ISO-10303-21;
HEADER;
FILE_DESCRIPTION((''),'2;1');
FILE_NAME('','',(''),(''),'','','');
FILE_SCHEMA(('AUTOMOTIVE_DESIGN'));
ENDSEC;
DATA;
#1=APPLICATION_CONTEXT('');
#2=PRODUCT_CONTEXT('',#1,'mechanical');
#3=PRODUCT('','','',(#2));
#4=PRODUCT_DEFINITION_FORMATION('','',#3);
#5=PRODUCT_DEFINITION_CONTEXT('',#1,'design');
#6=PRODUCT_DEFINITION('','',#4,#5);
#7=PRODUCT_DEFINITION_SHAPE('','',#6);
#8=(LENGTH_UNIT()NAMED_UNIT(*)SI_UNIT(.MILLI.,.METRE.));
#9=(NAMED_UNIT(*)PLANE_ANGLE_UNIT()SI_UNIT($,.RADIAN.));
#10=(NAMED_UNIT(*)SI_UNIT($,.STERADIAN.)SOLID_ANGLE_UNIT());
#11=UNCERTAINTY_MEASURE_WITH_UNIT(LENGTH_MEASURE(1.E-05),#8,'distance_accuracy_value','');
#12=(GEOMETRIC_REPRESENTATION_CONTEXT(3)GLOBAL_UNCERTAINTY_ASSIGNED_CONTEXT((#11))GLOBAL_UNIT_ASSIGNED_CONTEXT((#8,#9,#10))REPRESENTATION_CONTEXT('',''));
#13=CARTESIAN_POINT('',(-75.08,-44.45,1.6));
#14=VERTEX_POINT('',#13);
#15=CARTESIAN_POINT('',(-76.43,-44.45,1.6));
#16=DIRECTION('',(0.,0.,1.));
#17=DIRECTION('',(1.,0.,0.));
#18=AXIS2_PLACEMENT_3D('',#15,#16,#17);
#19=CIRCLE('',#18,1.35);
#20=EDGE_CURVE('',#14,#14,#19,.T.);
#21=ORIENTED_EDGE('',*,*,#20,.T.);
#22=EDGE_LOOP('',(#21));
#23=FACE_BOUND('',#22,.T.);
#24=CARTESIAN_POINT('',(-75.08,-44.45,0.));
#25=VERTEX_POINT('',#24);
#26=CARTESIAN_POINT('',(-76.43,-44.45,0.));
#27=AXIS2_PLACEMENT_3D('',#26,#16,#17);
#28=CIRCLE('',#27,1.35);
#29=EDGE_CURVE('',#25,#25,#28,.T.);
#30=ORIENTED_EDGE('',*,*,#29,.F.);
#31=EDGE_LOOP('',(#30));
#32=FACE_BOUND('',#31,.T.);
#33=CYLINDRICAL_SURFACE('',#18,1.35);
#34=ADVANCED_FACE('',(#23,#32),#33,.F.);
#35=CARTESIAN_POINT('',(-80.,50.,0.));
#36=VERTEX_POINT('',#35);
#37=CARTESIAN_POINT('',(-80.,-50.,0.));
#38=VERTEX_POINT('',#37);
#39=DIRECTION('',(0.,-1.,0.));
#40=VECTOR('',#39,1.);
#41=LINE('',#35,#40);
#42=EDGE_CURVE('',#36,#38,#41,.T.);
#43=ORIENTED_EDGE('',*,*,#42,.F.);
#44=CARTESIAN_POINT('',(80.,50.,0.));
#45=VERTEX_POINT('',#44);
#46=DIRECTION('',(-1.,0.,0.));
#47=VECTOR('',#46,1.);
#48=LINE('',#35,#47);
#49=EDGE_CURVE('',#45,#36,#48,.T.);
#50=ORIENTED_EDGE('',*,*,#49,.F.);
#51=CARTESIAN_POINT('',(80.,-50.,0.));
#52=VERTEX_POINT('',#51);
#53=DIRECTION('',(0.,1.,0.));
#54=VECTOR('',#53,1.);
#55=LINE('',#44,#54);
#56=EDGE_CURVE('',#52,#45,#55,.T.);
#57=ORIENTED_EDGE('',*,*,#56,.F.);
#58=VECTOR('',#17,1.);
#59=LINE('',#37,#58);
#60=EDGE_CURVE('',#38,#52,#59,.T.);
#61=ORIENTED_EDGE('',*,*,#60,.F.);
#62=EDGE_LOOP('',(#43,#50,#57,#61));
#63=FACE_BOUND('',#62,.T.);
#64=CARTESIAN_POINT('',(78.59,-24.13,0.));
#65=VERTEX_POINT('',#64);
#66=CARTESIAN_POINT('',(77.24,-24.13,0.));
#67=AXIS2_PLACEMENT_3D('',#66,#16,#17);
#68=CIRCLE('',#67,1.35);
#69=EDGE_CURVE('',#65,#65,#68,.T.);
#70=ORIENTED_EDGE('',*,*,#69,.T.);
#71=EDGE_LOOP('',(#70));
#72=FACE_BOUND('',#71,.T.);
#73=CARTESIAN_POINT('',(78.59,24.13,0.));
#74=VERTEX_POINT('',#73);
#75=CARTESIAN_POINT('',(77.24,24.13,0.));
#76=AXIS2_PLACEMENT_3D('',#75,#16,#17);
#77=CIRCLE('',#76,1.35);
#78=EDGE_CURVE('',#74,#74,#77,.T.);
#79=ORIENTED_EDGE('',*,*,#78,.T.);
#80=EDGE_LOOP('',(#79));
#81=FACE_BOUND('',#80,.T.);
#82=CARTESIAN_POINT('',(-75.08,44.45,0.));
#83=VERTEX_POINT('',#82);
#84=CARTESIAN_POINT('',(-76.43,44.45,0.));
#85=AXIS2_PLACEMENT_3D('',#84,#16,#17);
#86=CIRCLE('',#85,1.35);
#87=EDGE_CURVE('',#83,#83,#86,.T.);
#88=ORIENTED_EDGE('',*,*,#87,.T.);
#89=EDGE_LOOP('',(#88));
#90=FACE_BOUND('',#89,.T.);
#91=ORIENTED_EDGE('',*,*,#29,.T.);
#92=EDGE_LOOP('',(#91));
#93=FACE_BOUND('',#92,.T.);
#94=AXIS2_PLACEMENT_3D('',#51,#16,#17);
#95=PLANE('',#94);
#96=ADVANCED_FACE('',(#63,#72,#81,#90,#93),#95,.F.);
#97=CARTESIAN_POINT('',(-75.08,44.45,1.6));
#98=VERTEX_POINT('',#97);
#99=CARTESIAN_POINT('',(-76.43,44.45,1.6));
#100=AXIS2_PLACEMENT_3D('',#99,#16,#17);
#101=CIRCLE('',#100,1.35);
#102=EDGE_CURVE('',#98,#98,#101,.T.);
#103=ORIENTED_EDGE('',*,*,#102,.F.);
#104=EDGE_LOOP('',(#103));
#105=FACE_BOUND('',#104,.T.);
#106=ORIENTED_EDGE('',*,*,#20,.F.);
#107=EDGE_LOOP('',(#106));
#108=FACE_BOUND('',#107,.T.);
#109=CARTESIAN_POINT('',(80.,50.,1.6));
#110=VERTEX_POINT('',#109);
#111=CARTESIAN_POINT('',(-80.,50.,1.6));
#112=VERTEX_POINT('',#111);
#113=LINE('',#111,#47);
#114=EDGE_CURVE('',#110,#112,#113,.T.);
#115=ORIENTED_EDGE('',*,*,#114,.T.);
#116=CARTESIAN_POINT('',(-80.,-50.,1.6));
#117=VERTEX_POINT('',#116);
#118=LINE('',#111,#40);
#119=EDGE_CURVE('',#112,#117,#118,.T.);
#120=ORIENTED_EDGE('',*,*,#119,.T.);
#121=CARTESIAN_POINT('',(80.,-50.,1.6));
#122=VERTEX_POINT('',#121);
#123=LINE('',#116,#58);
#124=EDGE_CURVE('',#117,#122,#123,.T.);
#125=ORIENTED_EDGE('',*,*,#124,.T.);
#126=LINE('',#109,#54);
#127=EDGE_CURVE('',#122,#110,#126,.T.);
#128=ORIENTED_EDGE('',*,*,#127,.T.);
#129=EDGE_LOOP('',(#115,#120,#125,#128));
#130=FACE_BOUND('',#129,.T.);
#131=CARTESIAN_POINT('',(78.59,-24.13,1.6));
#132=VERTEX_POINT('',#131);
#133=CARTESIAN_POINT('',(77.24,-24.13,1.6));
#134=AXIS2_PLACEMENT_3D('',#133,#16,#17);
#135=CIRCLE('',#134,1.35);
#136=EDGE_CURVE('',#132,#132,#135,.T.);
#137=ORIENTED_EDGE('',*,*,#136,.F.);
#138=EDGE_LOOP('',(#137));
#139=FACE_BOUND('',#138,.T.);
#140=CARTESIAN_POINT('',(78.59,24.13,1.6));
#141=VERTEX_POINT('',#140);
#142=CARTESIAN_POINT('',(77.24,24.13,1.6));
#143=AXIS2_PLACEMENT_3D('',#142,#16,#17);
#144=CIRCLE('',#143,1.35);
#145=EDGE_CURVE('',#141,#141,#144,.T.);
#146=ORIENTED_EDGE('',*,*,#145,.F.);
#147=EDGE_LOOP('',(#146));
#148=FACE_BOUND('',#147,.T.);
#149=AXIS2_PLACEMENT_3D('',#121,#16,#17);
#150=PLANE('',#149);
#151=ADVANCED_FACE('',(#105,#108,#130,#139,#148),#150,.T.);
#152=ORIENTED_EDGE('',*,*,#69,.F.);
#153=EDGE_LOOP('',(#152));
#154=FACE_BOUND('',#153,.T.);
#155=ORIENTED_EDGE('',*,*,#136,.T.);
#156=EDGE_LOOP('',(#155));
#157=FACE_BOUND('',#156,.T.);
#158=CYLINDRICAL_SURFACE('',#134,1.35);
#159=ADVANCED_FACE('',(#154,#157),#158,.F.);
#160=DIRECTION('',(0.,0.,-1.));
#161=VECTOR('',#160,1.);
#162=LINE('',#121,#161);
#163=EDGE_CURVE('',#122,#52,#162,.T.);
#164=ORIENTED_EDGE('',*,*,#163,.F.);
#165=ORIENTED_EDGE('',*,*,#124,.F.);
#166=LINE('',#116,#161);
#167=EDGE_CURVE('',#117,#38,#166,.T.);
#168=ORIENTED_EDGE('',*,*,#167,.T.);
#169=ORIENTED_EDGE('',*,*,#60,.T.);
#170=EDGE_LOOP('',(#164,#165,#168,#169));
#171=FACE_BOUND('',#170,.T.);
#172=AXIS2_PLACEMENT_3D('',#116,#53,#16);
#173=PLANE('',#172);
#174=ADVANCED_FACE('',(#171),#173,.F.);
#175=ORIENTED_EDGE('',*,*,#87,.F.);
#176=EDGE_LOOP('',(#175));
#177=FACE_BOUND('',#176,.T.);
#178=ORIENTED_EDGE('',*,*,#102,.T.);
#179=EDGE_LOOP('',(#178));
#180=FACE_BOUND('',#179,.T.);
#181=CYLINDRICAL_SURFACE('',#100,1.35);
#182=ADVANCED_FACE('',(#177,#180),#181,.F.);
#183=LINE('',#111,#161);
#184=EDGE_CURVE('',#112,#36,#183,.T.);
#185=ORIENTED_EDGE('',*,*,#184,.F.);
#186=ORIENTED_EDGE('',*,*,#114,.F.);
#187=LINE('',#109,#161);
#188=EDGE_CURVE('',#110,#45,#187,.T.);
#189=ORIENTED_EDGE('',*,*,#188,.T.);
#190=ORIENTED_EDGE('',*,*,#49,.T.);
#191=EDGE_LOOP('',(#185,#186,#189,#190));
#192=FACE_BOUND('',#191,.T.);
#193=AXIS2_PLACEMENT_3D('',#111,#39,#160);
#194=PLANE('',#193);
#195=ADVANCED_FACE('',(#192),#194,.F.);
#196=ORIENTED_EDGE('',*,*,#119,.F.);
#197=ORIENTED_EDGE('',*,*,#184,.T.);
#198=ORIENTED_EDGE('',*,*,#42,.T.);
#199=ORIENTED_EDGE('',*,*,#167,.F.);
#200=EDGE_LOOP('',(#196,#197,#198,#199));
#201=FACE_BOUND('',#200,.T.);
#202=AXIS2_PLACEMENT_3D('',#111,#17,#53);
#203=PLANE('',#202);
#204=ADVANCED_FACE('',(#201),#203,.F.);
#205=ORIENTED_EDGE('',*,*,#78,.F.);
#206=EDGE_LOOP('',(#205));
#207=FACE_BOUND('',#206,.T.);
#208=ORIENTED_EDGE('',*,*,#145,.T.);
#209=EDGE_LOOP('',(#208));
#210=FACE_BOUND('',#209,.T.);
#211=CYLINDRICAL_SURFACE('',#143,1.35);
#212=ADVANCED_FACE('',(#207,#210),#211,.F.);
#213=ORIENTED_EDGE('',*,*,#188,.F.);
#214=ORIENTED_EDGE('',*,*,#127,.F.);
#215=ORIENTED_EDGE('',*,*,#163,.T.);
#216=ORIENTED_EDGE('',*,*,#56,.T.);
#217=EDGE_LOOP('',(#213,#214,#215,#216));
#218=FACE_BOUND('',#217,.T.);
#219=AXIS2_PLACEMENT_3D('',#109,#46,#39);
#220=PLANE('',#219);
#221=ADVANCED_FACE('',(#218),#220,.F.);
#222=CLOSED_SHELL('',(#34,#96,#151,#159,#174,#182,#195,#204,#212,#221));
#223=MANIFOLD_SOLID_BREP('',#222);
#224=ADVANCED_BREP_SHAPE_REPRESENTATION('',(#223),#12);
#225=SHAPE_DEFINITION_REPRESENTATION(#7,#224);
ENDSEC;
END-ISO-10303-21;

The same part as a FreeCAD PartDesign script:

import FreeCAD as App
import Part
import Sketcher

V = App.Vector
Q = App.Units.Quantity

doc = App.newDocument("Part")
params = doc.addObject("Spreadsheet::Sheet", "Params")
for row, (alias, value) in enumerate([
    ("sketch1_width", "160 mm"),
    ("sketch1_height", "100 mm"),
    ("pad1_length", "1.6 mm"),
    ("sketch2_diameter", "2.7 mm"),
    ("hole_diameter", "2.7 mm"),
    ("sketch3_diameter", "2.7 mm"),
    ("hole2_diameter", "2.7 mm"),
], start=1):
    params.set(f"A{row}", alias)
    params.set(f"B{row}", "=" + value)
    params.setAlias(f"B{row}", alias)

body = doc.addObject("PartDesign::Body", "Body")

# Sketch on XY plane
sketch1 = body.newObject("Sketcher::SketchObject", "Sketch")
sketch1.AttachmentSupport = (doc.getObject("XY_Plane"), [""])
sketch1.MapMode = "FlatFace"
sketch1.addGeometry([
    Part.LineSegment(V(-80, 50, 0), V(-80, -50, 0)),
    Part.LineSegment(V(-80, -50, 0), V(80, -50, 0)),
    Part.LineSegment(V(80, -50, 0), V(80, 50, 0)),
    Part.LineSegment(V(80, 50, 0), V(-80, 50, 0)),
], False)
sketch1.addConstraint([
    Sketcher.Constraint("Coincident", 0, 2, 1, 1),
    Sketcher.Constraint("Coincident", 1, 2, 2, 1),
    Sketcher.Constraint("Coincident", 2, 2, 3, 1),
    Sketcher.Constraint("Coincident", 3, 2, 0, 1),
    Sketcher.Constraint("Vertical", 0),
    Sketcher.Constraint("Horizontal", 1),
    Sketcher.Constraint("Vertical", 2),
    Sketcher.Constraint("Horizontal", 3),
    Sketcher.Constraint("Symmetric", 0, 2, 2, 2, -1, 1),
    Sketcher.Constraint("DistanceX", 1, 1, 1, 2, Q("160 mm")),
    Sketcher.Constraint("DistanceY", 0, 2, 0, 1, Q("100 mm")),
])
sketch1.setExpression("Constraints[9]", "Params.sketch1_width")
sketch1.setExpression("Constraints[10]", "Params.sketch1_height")
pad1 = body.newObject("PartDesign::Pad", "Pad")
pad1.Profile = sketch1
pad1.setExpression("Length", "Params.pad1_length")

# Sketch on XY plane
sketch2 = body.newObject("Sketcher::SketchObject", "Sketch001")
sketch2.AttachmentSupport = (doc.getObject("XY_Plane"), [""])
sketch2.MapMode = "FlatFace"
sketch2.AttachmentOffset = App.Placement(V(0, 0, 1.6), App.Rotation())
sketch2.addGeometry([
    Part.Circle(V(-76.43, 44.45, 0), V(0, 0, 1), 1.35),
    Part.Circle(V(-76.43, -44.45, 0), V(0, 0, 1), 1.35),
], False)
sketch2.addConstraint([
    Sketcher.Constraint("Equal", 0, 1),
    Sketcher.Constraint("Symmetric", 0, 3, 1, 3, -1),
    Sketcher.Constraint("Diameter", 0, Q("2.7 mm")),
    Sketcher.Constraint("DistanceY", 1, 3, 0, 3, Q("88.9 mm")),
    Sketcher.Constraint("DistanceX", 0, 3, -1, 1, Q("76.43 mm")),
])
sketch2.setExpression("Constraints[2]", "Params.sketch2_diameter")
doc.recompute()
hole = body.newObject("PartDesign::Hole", "Hole")
hole.Profile = sketch2
hole.ThreadType = "None"
hole.setExpression("Diameter", "Params.hole_diameter")
hole.DepthType = "ThroughAll"

# Sketch on XY plane
sketch3 = body.newObject("Sketcher::SketchObject", "Sketch002")
sketch3.AttachmentSupport = (doc.getObject("XY_Plane"), [""])
sketch3.MapMode = "FlatFace"
sketch3.AttachmentOffset = App.Placement(V(0, 0, 1.6), App.Rotation())
sketch3.addGeometry([
    Part.Circle(V(77.24, 24.13, 0), V(0, 0, 1), 1.35),
    Part.Circle(V(77.24, -24.13, 0), V(0, 0, 1), 1.35),
], False)
sketch3.addConstraint([
    Sketcher.Constraint("Equal", 0, 1),
    Sketcher.Constraint("Symmetric", 0, 3, 1, 3, -1),
    Sketcher.Constraint("Diameter", 0, Q("2.7 mm")),
    Sketcher.Constraint("DistanceX", -1, 1, 0, 3, Q("77.24 mm")),
    Sketcher.Constraint("DistanceY", -1, 1, 0, 3, Q("24.13 mm")),
])
sketch3.setExpression("Constraints[2]", "Params.sketch3_diameter")
doc.recompute()
hole2 = body.newObject("PartDesign::Hole", "Hole001")
hole2.Profile = sketch3
hole2.ThreadType = "None"
hole2.setExpression("Diameter", "Params.hole2_diameter")
hole2.DepthType = "ThroughAll"

doc.recompute()
